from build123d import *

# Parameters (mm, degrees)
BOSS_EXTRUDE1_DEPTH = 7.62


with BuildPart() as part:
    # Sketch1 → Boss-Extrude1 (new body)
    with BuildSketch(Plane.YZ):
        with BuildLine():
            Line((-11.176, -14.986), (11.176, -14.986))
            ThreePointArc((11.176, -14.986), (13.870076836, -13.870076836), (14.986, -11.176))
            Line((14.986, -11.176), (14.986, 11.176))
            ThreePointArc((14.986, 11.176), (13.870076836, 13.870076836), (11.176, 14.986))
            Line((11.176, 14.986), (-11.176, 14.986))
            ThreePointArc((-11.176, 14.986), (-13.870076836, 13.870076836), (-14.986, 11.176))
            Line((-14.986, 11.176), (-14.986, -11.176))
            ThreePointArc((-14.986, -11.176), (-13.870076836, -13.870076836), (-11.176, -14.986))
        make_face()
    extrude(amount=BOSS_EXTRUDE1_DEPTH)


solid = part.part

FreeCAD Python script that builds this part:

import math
import FreeCAD as App
import Part
import Sketcher
Q = App.Units.Quantity

doc = App.newDocument("Part")
body = doc.addObject("PartDesign::Body", "Body")

sketch1 = body.newObject("Sketcher::SketchObject", "Sketch")
sketch1.AttachmentSupport = (doc.getObject("YZ_Plane"), [""])
sketch1.MapMode = "FlatFace"
sketch1.addGeometry(Part.LineSegment(App.Vector(-11.176, -14.986, 0), App.Vector(11.176, -14.986, 0)), False)
sketch1.addGeometry(Part.ArcOfCircle(Part.Circle(App.Vector(11.176, -11.176, 0), App.Vector(0, 0, 1), 3.81), math.radians(-90), math.radians(0)), False)
sketch1.addGeometry(Part.LineSegment(App.Vector(14.986, -11.176, 0), App.Vector(14.986, 11.176, 0)), False)
sketch1.addGeometry(Part.ArcOfCircle(Part.Circle(App.Vector(11.176, 11.176, 0), App.Vector(0, 0, 1), 3.81), math.radians(0), math.radians(90)), False)
sketch1.addGeometry(Part.LineSegment(App.Vector(11.176, 14.986, 0), App.Vector(-11.176, 14.986, 0)), False)
sketch1.addGeometry(Part.ArcOfCircle(Part.Circle(App.Vector(-11.176, 11.176, 0), App.Vector(0, 0, 1), 3.81), math.radians(90), math.radians(180)), False)
sketch1.addGeometry(Part.LineSegment(App.Vector(-14.986, 11.176, 0), App.Vector(-14.986, -11.176, 0)), False)
sketch1.addGeometry(Part.ArcOfCircle(Part.Circle(App.Vector(-11.176, -11.176, 0), App.Vector(0, 0, 1), 3.81), math.radians(-180), math.radians(-90)), False)
sketch1.addConstraint(Sketcher.Constraint("Tangent", 0, 2, 1, 1))
sketch1.addConstraint(Sketcher.Constraint("Tangent", 1, 2, 2, 1))
sketch1.addConstraint(Sketcher.Constraint("Tangent", 2, 2, 3, 1))
sketch1.addConstraint(Sketcher.Constraint("Tangent", 3, 2, 4, 1))
sketch1.addConstraint(Sketcher.Constraint("Tangent", 4, 2, 5, 1))
sketch1.addConstraint(Sketcher.Constraint("Tangent", 5, 2, 6, 1))
sketch1.addConstraint(Sketcher.Constraint("Tangent", 6, 2, 7, 1))
sketch1.addConstraint(Sketcher.Constraint("Tangent", 7, 2, 0, 1))
sketch1.addConstraint(Sketcher.Constraint("Horizontal", 0))
sketch1.addConstraint(Sketcher.Constraint("Vertical", 2))
sketch1.addConstraint(Sketcher.Constraint("Horizontal", 4))
sketch1.addConstraint(Sketcher.Constraint("Vertical", 6))
sketch1.addConstraint(Sketcher.Constraint("Equal", 1, 3))
sketch1.addConstraint(Sketcher.Constraint("Equal", 3, 5))
sketch1.addConstraint(Sketcher.Constraint("Equal", 5, 7))
sketch1.addConstraint(Sketcher.Constraint("Symmetric", 1, 3, 5, 3, -1, 1))
sketch1.addConstraint(Sketcher.Constraint("Equal", 4, 2))
sketch1.addConstraint(Sketcher.Constraint("Radius", 1, Q("0.15 in")))
sketch1.addConstraint(Sketcher.Constraint("DistanceX", 0, 1, 0, 2, Q("0.88 in")))
pad1 = body.newObject("PartDesign::Pad", "Pad")
pad1.Profile = sketch1
pad1.Length = Q("0.3 in")

doc.recompute()
